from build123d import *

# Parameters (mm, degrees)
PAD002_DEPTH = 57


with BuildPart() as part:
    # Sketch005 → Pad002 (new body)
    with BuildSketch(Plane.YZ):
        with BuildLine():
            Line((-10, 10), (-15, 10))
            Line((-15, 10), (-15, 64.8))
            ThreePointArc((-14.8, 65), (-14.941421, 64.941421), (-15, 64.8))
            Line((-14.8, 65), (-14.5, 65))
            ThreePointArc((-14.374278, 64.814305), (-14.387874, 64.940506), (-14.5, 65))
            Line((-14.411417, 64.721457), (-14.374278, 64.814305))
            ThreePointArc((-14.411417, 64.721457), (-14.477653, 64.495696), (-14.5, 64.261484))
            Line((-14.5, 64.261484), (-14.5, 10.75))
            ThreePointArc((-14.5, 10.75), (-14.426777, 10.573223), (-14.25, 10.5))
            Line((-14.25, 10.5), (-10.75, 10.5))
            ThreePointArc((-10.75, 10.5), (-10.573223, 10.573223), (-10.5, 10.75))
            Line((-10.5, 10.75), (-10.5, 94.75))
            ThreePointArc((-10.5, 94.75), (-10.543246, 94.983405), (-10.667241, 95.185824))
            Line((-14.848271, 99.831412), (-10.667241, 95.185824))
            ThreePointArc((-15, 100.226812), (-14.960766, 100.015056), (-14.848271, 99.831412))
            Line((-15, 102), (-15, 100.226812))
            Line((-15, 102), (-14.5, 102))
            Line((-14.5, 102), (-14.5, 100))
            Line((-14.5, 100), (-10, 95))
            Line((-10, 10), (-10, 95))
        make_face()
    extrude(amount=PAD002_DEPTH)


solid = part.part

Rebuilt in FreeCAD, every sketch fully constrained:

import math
import FreeCAD as App
import Part
import Sketcher
Q = App.Units.Quantity

doc = App.newDocument("Part")
params = doc.addObject("Spreadsheet::Sheet", "Params")
for row, (alias, value) in enumerate([
    ("sketch1_radius", "0.200001 mm"),
    ("sketch1_width", "5 mm"),
    ("sketch1_height", "85 mm"),
    ("sketch1_height2", "2 mm"),
    ("sketch1_height3", "84 mm"),
    ("pad1_length", "57 mm"),
], start=1):
    params.set(f"A{row}", alias)
    params.set(f"B{row}", "=" + value)
    params.setAlias(f"B{row}", alias)

body = doc.addObject("PartDesign::Body", "Body")

# Sketch on YZ plane
sketch1 = body.newObject("Sketcher::SketchObject", "Sketch")
sketch1.AttachmentSupport = (doc.getObject("YZ_Plane"), [""])
sketch1.MapMode = "FlatFace"
sketch1.addGeometry([
    Part.LineSegment(App.Vector(-15, 10, 0), App.Vector(-10, 10, 0)),  # 0
    Part.LineSegment(App.Vector(-10, 10, 0), App.Vector(-10, 95, 0)),  # 1
    Part.LineSegment(App.Vector(-10, 95, 0), App.Vector(-14.5, 100, 0)),  # 2
    Part.LineSegment(App.Vector(-14.5, 100, 0), App.Vector(-14.5, 102, 0)),  # 3
    Part.LineSegment(App.Vector(-14.5, 102, 0), App.Vector(-15, 102, 0)),  # 4
    Part.LineSegment(App.Vector(-15, 102, 0), App.Vector(-15, 100.23, 0)),  # 5
    Part.ArcOfCircle(Part.Circle(App.Vector(-14.41, 100.23, 0), App.Vector(0, 0, 1), 0.59), math.radians(180), math.radians(222)),  # 6
    Part.LineSegment(App.Vector(-14.85, 99.83, 0), App.Vector(-10.67, 95.19, 0)),  # 7
    Part.ArcOfCircle(Part.Circle(App.Vector(-11.15, 94.75, 0), App.Vector(0, 0, 1), 0.65), math.radians(0), math.radians(42)),  # 8
    Part.LineSegment(App.Vector(-10.5, 94.75, 0), App.Vector(-10.5, 10.75, 0)),  # 9
    Part.ArcOfCircle(Part.Circle(App.Vector(-10.75, 10.75, 0), App.Vector(0, 0, 1), 0.25), math.radians(-90), math.radians(0)),  # 10
    Part.LineSegment(App.Vector(-10.75, 10.5, 0), App.Vector(-14.25, 10.5, 0)),  # 11
    Part.ArcOfCircle(Part.Circle(App.Vector(-14.25, 10.75, 0), App.Vector(0, 0, 1), 0.25), math.radians(180), math.radians(270)),  # 12
    Part.LineSegment(App.Vector(-14.5, 10.75, 0), App.Vector(-14.5, 64.26, 0)),  # 13
    Part.ArcOfCircle(Part.Circle(App.Vector(-13.26, 64.26, 0), App.Vector(0, 0, 1), 1.24), math.radians(158), math.radians(180)),  # 14
    Part.LineSegment(App.Vector(-14.41, 64.72, 0), App.Vector(-14.37, 64.81, 0)),  # 15
    Part.ArcOfCircle(Part.Circle(App.Vector(-14.5, 64.86, 0), App.Vector(0, 0, 1), 0.14), math.radians(-22), math.radians(90)),  # 16
    Part.LineSegment(App.Vector(-14.5, 65, 0), App.Vector(-14.8, 65, 0)),  # 17
    Part.ArcOfCircle(Part.Circle(App.Vector(-14.8, 64.8, 0), App.Vector(0, 0, 1), 0.2), math.radians(90), math.radians(180)),  # 18
    Part.LineSegment(App.Vector(-15, 64.8, 0), App.Vector(-15, 10, 0)),  # 19
], False)
sketch1.addConstraint([
    Sketcher.Constraint("Coincident", 0, 2, 1, 1),
    Sketcher.Constraint("Coincident", 1, 2, 2, 1),
    Sketcher.Constraint("Coincident", 2, 2, 3, 1),
    Sketcher.Constraint("Coincident", 3, 2, 4, 1),
    Sketcher.Constraint("Coincident", 4, 2, 5, 1),
    Sketcher.Constraint("Coincident", 5, 2, 6, 1),
    Sketcher.Constraint("Tangent", 6, 2, 7, 1),
    Sketcher.Constraint("Coincident", 7, 2, 8, 2),
    Sketcher.Constraint("Coincident", 8, 1, 9, 1),
    Sketcher.Constraint("Coincident", 9, 2, 10, 2),
    Sketcher.Constraint("Coincident", 10, 1, 11, 1),
    Sketcher.Constraint("Coincident", 11, 2, 12, 2),
    Sketcher.Constraint("Coincident", 12, 1, 13, 1),
    Sketcher.Constraint("Coincident", 13, 2, 14, 2),
    Sketcher.Constraint("Coincident", 14, 1, 15, 1),
    Sketcher.Constraint("Tangent", 15, 2, 16, 1),
    Sketcher.Constraint("Tangent", 16, 2, 17, 1),
    Sketcher.Constraint("Coincident", 17, 2, 18, 1),
    Sketcher.Constraint("Coincident", 18, 2, 19, 1),
    Sketcher.Constraint("Coincident", 19, 2, 0, 1),
    Sketcher.Constraint("Horizontal", 0),
    Sketcher.Constraint("Vertical", 1),
    Sketcher.Constraint("Vertical", 3),
    Sketcher.Constraint("Horizontal", 4),
    Sketcher.Constraint("Vertical", 5),
    Sketcher.Constraint("Vertical", 9),
    Sketcher.Constraint("Horizontal", 11),
    Sketcher.Constraint("Vertical", 13),
    Sketcher.Constraint("Horizontal", 17),
    Sketcher.Constraint("Vertical", 19),
    Sketcher.Constraint("Equal", 10, 12),
    Sketcher.Constraint("Parallel", 2, 7),
    Sketcher.Constraint("Horizontal", 6, 3, 5, 2),
    Sketcher.Constraint("Horizontal", 12, 3, 9, 2),
    Sketcher.Constraint("Horizontal", 9, 2, 12, 1),
    Sketcher.Constraint("Vertical", 16, 3, 2, 2),
    Sketcher.Constraint("Vertical", 12, 3, 11, 2),
    Sketcher.Constraint("Vertical", 3, 2, 12, 1),
    Sketcher.Constraint("Vertical", 18, 3, 17, 2),
    Sketcher.Constraint("Vertical", 5, 2, 18, 2),
    Sketcher.Constraint("Radius", 18, Q("0.200001 mm")),
    Sketcher.Constraint("DistanceX", 0, 1, 0, 2, Q("5 mm")),
    Sketcher.Constraint("DistanceY", 1, 1, 1, 2, Q("85 mm")),
    Sketcher.Constraint("DistanceY", 3, 1, 3, 2, Q("2 mm")),
    Sketcher.Constraint("DistanceY", 9, 2, 9, 1, Q("84 mm")),
    Sketcher.Constraint("Radius", 10, Q("0.249999 mm")),
    Sketcher.Constraint("DistanceX", 4, 2, 4, 1, Q("0.5 mm")),
    Sketcher.Constraint("DistanceX", 11, 2, 11, 1, Q("3.5 mm")),
    Sketcher.Constraint("DistanceY", 19, 2, 19, 1, Q("54.8 mm")),
    Sketcher.Constraint("DistanceX", 0, 2, -1, 1, Q("10 mm")),
    Sketcher.Constraint("DistanceY", -1, 1, 0, 2, Q("10 mm")),
    Sketcher.Constraint("DistanceY", -1, 1, 2, 2, Q("100 mm")),
    Sketcher.Constraint("DistanceY", -1, 1, 16, 2, Q("65 mm")),
    Sketcher.Constraint("DistanceY", 10, 3, 8, 3, Q("83.999998 mm")),
    Sketcher.Constraint("DistanceX", 2, 2, 8, 1, Q("4 mm")),
    Sketcher.Constraint("Distance", 15, Q("0.1 mm")),
    Sketcher.Constraint("DistanceY", -1, 1, 10, 1, Q("10.5 mm")),
    Sketcher.Constraint("Radius", 8, Q("0.651499 mm")),
    Sketcher.Constraint("Distance", 7, Q("6.25 mm")),
    Sketcher.Constraint("Radius", 6, Q("0.591059 mm")),
    Sketcher.Constraint("Radius", 14, Q("1.238498 mm")),
    Sketcher.Constraint("Radius", 16, Q("0.135407 mm")),
    Sketcher.Constraint("DistanceY", 13, 1, 13, 2, Q("53.511484 mm")),
    Sketcher.Constraint("DistanceY", 14, 3, 8, 3, Q("30.488511 mm")),
])
sketch1.setExpression("Constraints[40]", "Params.sketch1_radius")
sketch1.setExpression("Constraints[41]", "Params.sketch1_width")
sketch1.setExpression("Constraints[42]", "Params.sketch1_height")
sketch1.setExpression("Constraints[43]", "Params.sketch1_height2")
sketch1.setExpression("Constraints[44]", "Params.sketch1_height3")
pad1 = body.newObject("PartDesign::Pad", "Pad")
pad1.Profile = sketch1
pad1.setExpression("Length", "Params.pad1_length")

doc.recompute()
